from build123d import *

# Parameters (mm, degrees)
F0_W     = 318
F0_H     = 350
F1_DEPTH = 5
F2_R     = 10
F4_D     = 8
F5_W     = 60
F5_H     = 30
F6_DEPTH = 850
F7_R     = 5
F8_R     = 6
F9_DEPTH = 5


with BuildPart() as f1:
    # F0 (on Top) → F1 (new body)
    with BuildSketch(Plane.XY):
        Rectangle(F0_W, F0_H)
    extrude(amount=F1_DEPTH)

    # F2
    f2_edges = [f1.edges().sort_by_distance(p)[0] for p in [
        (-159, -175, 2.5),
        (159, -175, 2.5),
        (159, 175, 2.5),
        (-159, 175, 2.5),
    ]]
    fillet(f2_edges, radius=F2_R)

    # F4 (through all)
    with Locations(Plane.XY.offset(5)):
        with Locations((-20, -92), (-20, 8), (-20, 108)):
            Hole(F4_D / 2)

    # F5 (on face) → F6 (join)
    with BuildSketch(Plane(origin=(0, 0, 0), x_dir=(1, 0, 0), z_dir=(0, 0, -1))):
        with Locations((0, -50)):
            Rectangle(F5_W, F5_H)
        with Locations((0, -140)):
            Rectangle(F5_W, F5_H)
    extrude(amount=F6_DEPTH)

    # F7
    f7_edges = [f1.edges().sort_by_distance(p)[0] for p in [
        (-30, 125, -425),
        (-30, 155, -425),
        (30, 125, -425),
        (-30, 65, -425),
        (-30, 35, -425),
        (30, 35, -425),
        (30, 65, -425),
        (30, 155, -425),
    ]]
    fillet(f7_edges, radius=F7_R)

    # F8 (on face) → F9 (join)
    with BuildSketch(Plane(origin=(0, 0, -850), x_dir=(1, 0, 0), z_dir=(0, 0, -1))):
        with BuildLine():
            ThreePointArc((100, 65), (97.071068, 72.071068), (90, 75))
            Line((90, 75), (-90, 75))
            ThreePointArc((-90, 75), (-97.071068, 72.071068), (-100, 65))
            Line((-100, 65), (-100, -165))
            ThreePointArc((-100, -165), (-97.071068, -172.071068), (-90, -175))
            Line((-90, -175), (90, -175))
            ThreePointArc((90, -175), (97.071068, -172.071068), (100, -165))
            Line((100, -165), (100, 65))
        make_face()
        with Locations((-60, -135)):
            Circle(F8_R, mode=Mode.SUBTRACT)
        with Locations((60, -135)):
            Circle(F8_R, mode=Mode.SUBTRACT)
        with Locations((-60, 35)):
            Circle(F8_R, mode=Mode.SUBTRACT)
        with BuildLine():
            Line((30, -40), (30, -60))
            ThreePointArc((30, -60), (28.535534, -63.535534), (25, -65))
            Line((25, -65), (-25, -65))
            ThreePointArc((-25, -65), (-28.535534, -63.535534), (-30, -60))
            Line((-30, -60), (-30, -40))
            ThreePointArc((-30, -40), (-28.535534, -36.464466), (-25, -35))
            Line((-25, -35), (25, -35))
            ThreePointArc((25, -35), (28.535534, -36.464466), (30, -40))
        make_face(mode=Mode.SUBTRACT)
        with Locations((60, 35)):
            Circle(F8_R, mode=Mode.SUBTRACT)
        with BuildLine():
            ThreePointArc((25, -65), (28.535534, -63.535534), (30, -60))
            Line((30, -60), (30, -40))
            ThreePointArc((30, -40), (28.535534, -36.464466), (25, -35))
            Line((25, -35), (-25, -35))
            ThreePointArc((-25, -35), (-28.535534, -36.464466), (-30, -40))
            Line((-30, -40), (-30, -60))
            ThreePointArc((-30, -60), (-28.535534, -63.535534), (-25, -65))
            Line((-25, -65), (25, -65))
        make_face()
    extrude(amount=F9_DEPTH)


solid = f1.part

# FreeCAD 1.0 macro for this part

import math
import FreeCAD as App
import Part
import Sketcher
Q = App.Units.Quantity


def edges_at(feature, points):
    """Names of the edges that pass closest to the given points."""
    edges = feature.Shape.Edges
    near = lambda p: min(range(len(edges)), key=lambda i: edges[i].distToShape(Part.Vertex(*p))[0])
    return sorted({f"Edge{near(p) + 1}" for p in points})

doc = App.newDocument("Part")
params = doc.addObject("Spreadsheet::Sheet", "Params")
for row, (alias, value) in enumerate([
    ("sketch1_width", "318 mm"),
    ("sketch1_height", "350 mm"),
    ("pad1_length", "5 mm"),
    ("fillet_radius", "10 mm"),
    ("sketch2_diameter", "8 mm"),
    ("hole_diameter", "8 mm"),
    ("sketch3_width", "60 mm"),
    ("sketch3_height", "30 mm"),
    ("pad2_length", "850 mm"),
    ("fillet2_radius", "5 mm"),
    ("sketch4_diameter", "12 mm"),
    ("sketch4_radius", "9.999999 mm"),
    ("sketch4_width", "180 mm"),
    ("sketch4_height", "230 mm"),
    ("pad3_length", "5 mm"),
], start=1):
    params.set(f"A{row}", alias)
    params.set(f"B{row}", "=" + value)
    params.setAlias(f"B{row}", alias)

body = doc.addObject("PartDesign::Body", "Body")

# Sketch on XY plane
sketch1 = doc.addObject("Sketcher::SketchObject", "Sketch")
body.addObject(sketch1)
sketch1.AttachmentSupport = (doc.XY_Plane, [""])
sketch1.MapMode = "FlatFace"
sketch1.addGeometry(Part.LineSegment(App.Vector(-159, 175, 0), App.Vector(-159, -175, 0)), False)
sketch1.addGeometry(Part.LineSegment(App.Vector(-159, -175, 0), App.Vector(159, -175, 0)), False)
sketch1.addGeometry(Part.LineSegment(App.Vector(159, -175, 0), App.Vector(159, 175, 0)), False)
sketch1.addGeometry(Part.LineSegment(App.Vector(159, 175, 0), App.Vector(-159, 175, 0)), False)
sketch1.addConstraint(Sketcher.Constraint("Coincident", 0, 2, 1, 1))
sketch1.addConstraint(Sketcher.Constraint("Coincident", 1, 2, 2, 1))
sketch1.addConstraint(Sketcher.Constraint("Coincident", 2, 2, 3, 1))
sketch1.addConstraint(Sketcher.Constraint("Coincident", 3, 2, 0, 1))
sketch1.addConstraint(Sketcher.Constraint("Vertical", 0))
sketch1.addConstraint(Sketcher.Constraint("Horizontal", 1))
sketch1.addConstraint(Sketcher.Constraint("Vertical", 2))
sketch1.addConstraint(Sketcher.Constraint("Horizontal", 3))
sketch1.addConstraint(Sketcher.Constraint("Symmetric", 0, 2, 2, 2, -1, 1))
sketch1.addConstraint(Sketcher.Constraint("DistanceX", 1, 1, 1, 2, Q("318 mm")))
sketch1.addConstraint(Sketcher.Constraint("DistanceY", 0, 2, 0, 1, Q("350 mm")))
sketch1.setExpression("Constraints[9]", "Params.sketch1_width")
sketch1.setExpression("Constraints[10]", "Params.sketch1_height")
pad1 = doc.addObject("PartDesign::Pad", "Pad")
body.addObject(pad1)
pad1.Profile = sketch1
pad1.setExpression("Length", "Params.pad1_length")
doc.recompute()

fillet = doc.addObject("PartDesign::Fillet", "Fillet")
body.addObject(fillet)
fillet.Base = (pad1, edges_at(pad1, [
    (-159, -175, 2.5),
    (159, -175, 2.5),
    (159, 175, 2.5),
    (-159, 175, 2.5),
]))
fillet.setExpression("Radius", "Params.fillet_radius")

# Sketch on XY plane
sketch2 = doc.addObject("Sketcher::SketchObject", "Sketch001")
body.addObject(sketch2)
sketch2.AttachmentSupport = (doc.XY_Plane, [""])
sketch2.MapMode = "FlatFace"
sketch2.AttachmentOffset = App.Placement(App.Vector(0, 0, 5), App.Rotation())
sketch2.addGeometry(Part.Circle(App.Vector(-20, -92, 0), App.Vector(0, 0, 1), 4), False)
sketch2.addGeometry(Part.Circle(App.Vector(-20, 8, 0), App.Vector(0, 0, 1), 4), False)
sketch2.addGeometry(Part.Circle(App.Vector(-20, 108, 0), App.Vector(0, 0, 1), 4), False)
sketch2.addConstraint(Sketcher.Constraint("Equal", 0, 1))
sketch2.addConstraint(Sketcher.Constraint("Equal", 1, 2))
sketch2.addConstraint(Sketcher.Constraint("Vertical", 0, 3, 1, 3))
sketch2.addConstraint(Sketcher.Constraint("Vertical", 1, 3, 2, 3))
sketch2.addConstraint(Sketcher.Constraint("Diameter", 0, Q("8 mm")))
sketch2.addConstraint(Sketcher.Constraint("DistanceX", 0, 3, -1, 1, Q("20 mm")))
sketch2.addConstraint(Sketcher.Constraint("DistanceY", 0, 3, -1, 1, Q("92 mm")))
sketch2.addConstraint(Sketcher.Constraint("DistanceY", -1, 1, 1, 3, Q("8 mm")))
sketch2.addConstraint(Sketcher.Constraint("DistanceY", -1, 1, 2, 3, Q("108 mm")))
sketch2.setExpression("Constraints[4]", "Params.sketch2_diameter")
doc.recompute()
hole = doc.addObject("PartDesign::Hole", "Hole")
body.addObject(hole)
hole.Profile = sketch2
hole.ThreadType = "None"
hole.setExpression("Diameter", "Params.hole_diameter")
hole.DepthType = "ThroughAll"

# Sketch on XY plane
sketch3 = doc.addObject("Sketcher::SketchObject", "Sketch002")
body.addObject(sketch3)
sketch3.AttachmentSupport = (doc.XY_Plane, [""])
sketch3.MapMode = "FlatFace"
sketch3.addGeometry(Part.LineSegment(App.Vector(-30, 35, 0), App.Vector(-30, 65, 0)), False)
sketch3.addGeometry(Part.LineSegment(App.Vector(-30, 65, 0), App.Vector(30, 65, 0)), False)
sketch3.addGeometry(Part.LineSegment(App.Vector(30, 65, 0), App.Vector(30, 35, 0)), False)
sketch3.addGeometry(Part.LineSegment(App.Vector(30, 35, 0), App.Vector(-30, 35, 0)), False)
sketch3.addGeometry(Part.LineSegment(App.Vector(-30, 125, 0), App.Vector(-30, 155, 0)), False)
sketch3.addGeometry(Part.LineSegment(App.Vector(-30, 155, 0), App.Vector(30, 155, 0)), False)
sketch3.addGeometry(Part.LineSegment(App.Vector(30, 155, 0), App.Vector(30, 125, 0)), False)
sketch3.addGeometry(Part.LineSegment(App.Vector(30, 125, 0), App.Vector(-30, 125, 0)), False)
sketch3.addConstraint(Sketcher.Constraint("Coincident", 0, 2, 1, 1))
sketch3.addConstraint(Sketcher.Constraint("Coincident", 1, 2, 2, 1))
sketch3.addConstraint(Sketcher.Constraint("Coincident", 2, 2, 3, 1))
sketch3.addConstraint(Sketcher.Constraint("Coincident", 3, 2, 0, 1))
sketch3.addConstraint(Sketcher.Constraint("Coincident", 4, 2, 5, 1))
sketch3.addConstraint(Sketcher.Constraint("Coincident", 5, 2, 6, 1))
sketch3.addConstraint(Sketcher.Constraint("Coincident", 6, 2, 7, 1))
sketch3.addConstraint(Sketcher.Constraint("Coincident", 7, 2, 4, 1))
sketch3.addConstraint(Sketcher.Constraint("Vertical", 0))
sketch3.addConstraint(Sketcher.Constraint("Horizontal", 1))
sketch3.addConstraint(Sketcher.Constraint("Vertical", 2))
sketch3.addConstraint(Sketcher.Constraint("Horizontal", 3))
sketch3.addConstraint(Sketcher.Constraint("Vertical", 4))
sketch3.addConstraint(Sketcher.Constraint("Horizontal", 5))
sketch3.addConstraint(Sketcher.Constraint("Vertical", 6))
sketch3.addConstraint(Sketcher.Constraint("Horizontal", 7))
sketch3.addConstraint(Sketcher.Constraint("Vertical", 3, 2, 4, 2))
sketch3.addConstraint(Sketcher.Constraint("Vertical", 2, 2, 5, 2))
sketch3.addConstraint(Sketcher.Constraint("Equal", 2, 4))
sketch3.addConstraint(Sketcher.Constraint("DistanceX", 1, 1, 1, 2, Q("60 mm")))
sketch3.addConstraint(Sketcher.Constraint("DistanceY", 0, 1, 0, 2, Q("30 mm")))
sketch3.addConstraint(Sketcher.Constraint("DistanceX", 0, 2, -1, 1, Q("30 mm")))
sketch3.addConstraint(Sketcher.Constraint("DistanceY", -1, 1, 0, 2, Q("65 mm")))
sketch3.addConstraint(Sketcher.Constraint("DistanceY", -1, 1, 4, 2, Q("155 mm")))
sketch3.setExpression("Constraints[19]", "Params.sketch3_width")
sketch3.setExpression("Constraints[20]", "Params.sketch3_height")
pad2 = doc.addObject("PartDesign::Pad", "Pad001")
body.addObject(pad2)
pad2.Profile = sketch3
pad2.setExpression("Length", "Params.pad2_length")
pad2.Reversed = True
doc.recompute()

fillet2 = doc.addObject("PartDesign::Fillet", "Fillet001")
body.addObject(fillet2)
fillet2.Base = (pad2, edges_at(pad2, [
    (-30, 125, -425),
    (-30, 155, -425),
    (30, 125, -425),
    (-30, 65, -425),
    (-30, 35, -425),
    (30, 35, -425),
    (30, 65, -425),
    (30, 155, -425),
]))
fillet2.setExpression("Radius", "Params.fillet2_radius")

# Sketch on XY plane
sketch4 = doc.addObject("Sketcher::SketchObject", "Sketch003")
body.addObject(sketch4)
sketch4.AttachmentSupport = (doc.XY_Plane, [""])
sketch4.MapMode = "FlatFace"
sketch4.AttachmentOffset = App.Placement(App.Vector(0, 0, -850), App.Rotation())
sketch4.addGeometry(Part.ArcOfCircle(Part.Circle(App.Vector(90, -65, 0), App.Vector(0, 0, 1), 10), math.radians(-90), math.radians(0)), False)
sketch4.addGeometry(Part.LineSegment(App.Vector(90, -75, 0), App.Vector(-90, -75, 0)), False)
sketch4.addGeometry(Part.ArcOfCircle(Part.Circle(App.Vector(-90, -65, 0), App.Vector(0, 0, 1), 10), math.radians(180), math.radians(270)), False)
sketch4.addGeometry(Part.LineSegment(App.Vector(-100, -65, 0), App.Vector(-100, 165, 0)), False)
sketch4.addGeometry(Part.ArcOfCircle(Part.Circle(App.Vector(-90, 165, 0), App.Vector(0, 0, 1), 10), math.radians(90), math.radians(180)), False)
sketch4.addGeometry(Part.LineSegment(App.Vector(-90, 175, 0), App.Vector(90, 175, 0)), False)
sketch4.addGeometry(Part.ArcOfCircle(Part.Circle(App.Vector(90, 165, 0), App.Vector(0, 0, 1), 10), math.radians(0), math.radians(90)), False)
sketch4.addGeometry(Part.LineSegment(App.Vector(100, 165, 0), App.Vector(100, -65, 0)), False)
sketch4.addGeometry(Part.Circle(App.Vector(-60, 135, 0), App.Vector(0, 0, 1), 6), False)
sketch4.addGeometry(Part.Circle(App.Vector(60, 135, 0), App.Vector(0, 0, 1), 6), False)
sketch4.addGeometry(Part.Circle(App.Vector(-60, -35, 0), App.Vector(0, 0, 1), 6), False)
sketch4.addGeometry(Part.Circle(App.Vector(60, -35, 0), App.Vector(0, 0, 1), 6), False)
sketch4.addConstraint(Sketcher.Constraint("Tangent", 0, 1, 1, 1))
sketch4.addConstraint(Sketcher.Constraint("Tangent", 1, 2, 2, 2))
sketch4.addConstraint(Sketcher.Constraint("Tangent", 2, 1, 3, 1))
sketch4.addConstraint(Sketcher.Constraint("Tangent", 3, 2, 4, 2))
sketch4.addConstraint(Sketcher.Constraint("Tangent", 4, 1, 5, 1))
sketch4.addConstraint(Sketcher.Constraint("Tangent", 5, 2, 6, 2))
sketch4.addConstraint(Sketcher.Constraint("Tangent", 6, 1, 7, 1))
sketch4.addConstraint(Sketcher.Constraint("Tangent", 7, 2, 0, 2))
sketch4.addConstraint(Sketcher.Constraint("Horizontal", 1))
sketch4.addConstraint(Sketcher.Constraint("Vertical", 3))
sketch4.addConstraint(Sketcher.Constraint("Horizontal", 5))
sketch4.addConstraint(Sketcher.Constraint("Vertical", 7))
sketch4.addConstraint(Sketcher.Constraint("Equal", 0, 2))
sketch4.addConstraint(Sketcher.Constraint("Equal", 2, 4))
sketch4.addConstraint(Sketcher.Constraint("Equal", 4, 6))
sketch4.addConstraint(Sketcher.Constraint("Equal", 8, 9))
sketch4.addConstraint(Sketcher.Constraint("Equal", 9, 10))
sketch4.addConstraint(Sketcher.Constraint("Equal", 10, 11))
sketch4.addConstraint(Sketcher.Constraint("Symmetric", 8, 3, 9, 3, -2))
sketch4.addConstraint(Sketcher.Constraint("Symmetric", 10, 3, 11, 3, -2))
sketch4.addConstraint(Sketcher.Constraint("Vertical", 8, 3, 10, 3))
sketch4.addConstraint(Sketcher.Constraint("Diameter", 8, Q("12 mm")))
sketch4.addConstraint(Sketcher.Constraint("Radius", 0, Q("9.999999 mm")))
sketch4.addConstraint(Sketcher.Constraint("DistanceX", 1, 2, 1, 1, Q("180 mm")))
sketch4.addConstraint(Sketcher.Constraint("DistanceY", 3, 1, 3, 2, Q("230 mm")))
sketch4.addConstraint(Sketcher.Constraint("DistanceX", -1, 1, 0, 3, Q("90.000001 mm")))
sketch4.addConstraint(Sketcher.Constraint("DistanceY", 0, 3, -1, 1, Q("65.000001 mm")))
sketch4.addConstraint(Sketcher.Constraint("DistanceX", 8, 3, -1, 1, Q("60 mm")))
sketch4.addConstraint(Sketcher.Constraint("DistanceY", -1, 1, 8, 3, Q("135 mm")))
sketch4.addConstraint(Sketcher.Constraint("DistanceY", 10, 3, -1, 1, Q("35 mm")))
sketch4.setExpression("Constraints[21]", "Params.sketch4_diameter")
sketch4.setExpression("Constraints[22]", "Params.sketch4_radius")
sketch4.setExpression("Constraints[23]", "Params.sketch4_width")
sketch4.setExpression("Constraints[24]", "Params.sketch4_height")
pad3 = doc.addObject("PartDesign::Pad", "Pad002")
body.addObject(pad3)
pad3.Profile = sketch4
pad3.setExpression("Length", "Params.pad3_length")
pad3.Reversed = True

doc.recompute()
